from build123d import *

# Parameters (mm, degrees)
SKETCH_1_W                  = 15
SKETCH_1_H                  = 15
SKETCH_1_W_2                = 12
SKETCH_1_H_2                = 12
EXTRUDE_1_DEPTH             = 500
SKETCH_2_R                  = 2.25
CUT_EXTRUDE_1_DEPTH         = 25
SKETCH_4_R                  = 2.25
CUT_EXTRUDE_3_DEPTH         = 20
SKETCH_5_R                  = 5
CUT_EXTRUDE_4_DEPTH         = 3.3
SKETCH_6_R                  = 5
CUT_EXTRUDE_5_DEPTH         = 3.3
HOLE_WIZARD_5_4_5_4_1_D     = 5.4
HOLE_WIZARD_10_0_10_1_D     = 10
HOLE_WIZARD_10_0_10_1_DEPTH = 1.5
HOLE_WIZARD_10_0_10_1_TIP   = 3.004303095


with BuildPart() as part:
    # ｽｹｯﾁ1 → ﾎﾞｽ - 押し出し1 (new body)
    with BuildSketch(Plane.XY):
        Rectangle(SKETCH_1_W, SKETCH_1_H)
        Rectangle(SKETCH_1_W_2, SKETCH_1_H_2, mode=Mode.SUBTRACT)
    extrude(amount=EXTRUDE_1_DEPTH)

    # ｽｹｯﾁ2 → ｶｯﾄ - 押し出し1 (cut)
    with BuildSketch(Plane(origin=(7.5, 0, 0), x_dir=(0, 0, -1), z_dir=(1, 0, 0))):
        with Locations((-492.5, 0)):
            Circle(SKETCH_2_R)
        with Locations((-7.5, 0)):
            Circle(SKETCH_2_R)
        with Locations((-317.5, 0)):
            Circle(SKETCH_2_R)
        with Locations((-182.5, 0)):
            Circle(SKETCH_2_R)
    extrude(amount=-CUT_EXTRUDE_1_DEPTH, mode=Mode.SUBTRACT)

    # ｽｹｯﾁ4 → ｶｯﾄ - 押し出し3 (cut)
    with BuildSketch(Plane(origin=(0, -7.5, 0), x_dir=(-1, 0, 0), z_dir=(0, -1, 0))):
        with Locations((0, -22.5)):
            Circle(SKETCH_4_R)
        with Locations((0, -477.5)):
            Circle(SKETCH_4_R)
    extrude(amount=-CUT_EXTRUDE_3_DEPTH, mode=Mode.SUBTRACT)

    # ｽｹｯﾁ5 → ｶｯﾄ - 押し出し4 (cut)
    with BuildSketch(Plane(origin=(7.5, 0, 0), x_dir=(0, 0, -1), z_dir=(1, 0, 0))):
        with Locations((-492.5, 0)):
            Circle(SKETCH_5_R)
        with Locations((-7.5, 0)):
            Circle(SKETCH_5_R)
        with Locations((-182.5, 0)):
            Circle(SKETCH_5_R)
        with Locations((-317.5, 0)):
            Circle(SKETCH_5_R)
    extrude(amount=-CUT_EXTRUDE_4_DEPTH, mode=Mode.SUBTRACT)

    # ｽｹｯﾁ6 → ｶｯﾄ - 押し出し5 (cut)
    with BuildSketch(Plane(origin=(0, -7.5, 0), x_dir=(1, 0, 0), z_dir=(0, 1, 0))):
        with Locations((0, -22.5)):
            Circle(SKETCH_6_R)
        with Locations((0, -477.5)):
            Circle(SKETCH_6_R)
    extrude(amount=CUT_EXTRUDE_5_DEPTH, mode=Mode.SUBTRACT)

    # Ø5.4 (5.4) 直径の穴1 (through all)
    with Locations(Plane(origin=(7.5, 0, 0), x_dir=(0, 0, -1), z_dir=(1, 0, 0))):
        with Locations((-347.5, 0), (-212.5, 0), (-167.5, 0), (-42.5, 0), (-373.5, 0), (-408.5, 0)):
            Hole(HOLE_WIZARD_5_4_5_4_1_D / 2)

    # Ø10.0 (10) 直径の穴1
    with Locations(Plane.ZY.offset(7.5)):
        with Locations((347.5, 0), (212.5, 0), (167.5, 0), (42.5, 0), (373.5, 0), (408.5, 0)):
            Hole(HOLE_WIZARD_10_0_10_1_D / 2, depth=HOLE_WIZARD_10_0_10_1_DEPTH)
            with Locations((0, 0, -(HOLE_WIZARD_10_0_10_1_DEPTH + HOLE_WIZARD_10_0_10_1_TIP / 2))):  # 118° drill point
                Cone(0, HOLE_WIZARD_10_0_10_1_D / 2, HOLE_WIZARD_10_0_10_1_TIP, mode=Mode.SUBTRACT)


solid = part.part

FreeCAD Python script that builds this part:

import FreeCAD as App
import Part
import Sketcher

V = App.Vector
Q = App.Units.Quantity

doc = App.newDocument("Part")
body = doc.addObject("PartDesign::Body", "Body")

sketch1 = body.newObject("Sketcher::SketchObject", "Sketch")
sketch1.AttachmentSupport = (doc.getObject("XY_Plane"), [""])
sketch1.MapMode = "FlatFace"
sketch1.addGeometry([
    Part.LineSegment(V(-7.5, 7.5, 0), V(-7.5, -7.5, 0)),
    Part.LineSegment(V(-7.5, -7.5, 0), V(7.5, -7.5, 0)),
    Part.LineSegment(V(7.5, -7.5, 0), V(7.5, 7.5, 0)),
    Part.LineSegment(V(7.5, 7.5, 0), V(-7.5, 7.5, 0)),
    Part.LineSegment(V(6, -6, 0), V(-6, -6, 0)),
    Part.LineSegment(V(-6, -6, 0), V(-6, 6, 0)),
    Part.LineSegment(V(-6, 6, 0), V(6, 6, 0)),
    Part.LineSegment(V(6, 6, 0), V(6, -6, 0)),
], False)
sketch1.addConstraint([
    Sketcher.Constraint("Coincident", 0, 2, 1, 1),
    Sketcher.Constraint("Coincident", 1, 2, 2, 1),
    Sketcher.Constraint("Coincident", 2, 2, 3, 1),
    Sketcher.Constraint("Coincident", 3, 2, 0, 1),
    Sketcher.Constraint("Coincident", 4, 2, 5, 1),
    Sketcher.Constraint("Coincident", 5, 2, 6, 1),
    Sketcher.Constraint("Coincident", 6, 2, 7, 1),
    Sketcher.Constraint("Coincident", 7, 2, 4, 1),
    Sketcher.Constraint("Vertical", 0),
    Sketcher.Constraint("Horizontal", 1),
    Sketcher.Constraint("Vertical", 2),
    Sketcher.Constraint("Horizontal", 3),
    Sketcher.Constraint("Horizontal", 4),
    Sketcher.Constraint("Vertical", 5),
    Sketcher.Constraint("Horizontal", 6),
    Sketcher.Constraint("Vertical", 7),
    Sketcher.Constraint("Symmetric", 0, 2, 2, 2, -1, 1),
    Sketcher.Constraint("Symmetric", 4, 2, 6, 2, -1, 1),
    Sketcher.Constraint("Equal", 3, 0),
    Sketcher.Constraint("Equal", 6, 5),
    Sketcher.Constraint("DistanceX", 1, 1, 1, 2, Q("15 mm")),
    Sketcher.Constraint("DistanceX", 4, 2, 4, 1, Q("12 mm")),
])
pad1 = body.newObject("PartDesign::Pad", "Pad")
pad1.Profile = sketch1
pad1.Length = 500

sketch2 = body.newObject("Sketcher::SketchObject", "Sketch001")
sketch2.AttachmentSupport = (doc.getObject("YZ_Plane"), [""])
sketch2.MapMode = "FlatFace"
sketch2.AttachmentOffset = App.Placement(V(0, 0, 7.5), App.Rotation())
sketch2.addGeometry([
    Part.Circle(V(0, 492.5, 0), V(0, 0, 1), 2.25),
    Part.Circle(V(0, 7.5, 0), V(0, 0, 1), 2.25),
    Part.Circle(V(0, 317.5, 0), V(0, 0, 1), 2.25),
    Part.Circle(V(0, 182.5, 0), V(0, 0, 1), 2.25),
], False)
sketch2.addConstraint([
    Sketcher.Constraint("Equal", 0, 1),
    Sketcher.Constraint("Equal", 1, 2),
    Sketcher.Constraint("Equal", 2, 3),
    Sketcher.Constraint("PointOnObject", 0, 3, -2),
    Sketcher.Constraint("PointOnObject", 1, 3, -2),
    Sketcher.Constraint("PointOnObject", 2, 3, -2),
    Sketcher.Constraint("PointOnObject", 3, 3, -2),
    Sketcher.Constraint("Diameter", 0, Q("4.5 mm")),
    Sketcher.Constraint("DistanceY", 1, 3, 0, 3, Q("485 mm")),
    Sketcher.Constraint("DistanceY", 2, 3, 0, 3, Q("175 mm")),
    Sketcher.Constraint("DistanceY", 3, 3, 2, 3, Q("135 mm")),
    Sketcher.Constraint("DistanceY", -1, 1, 0, 3, Q("492.5 mm")),
])
pocket1 = body.newObject("PartDesign::Pocket", "Pocket")
pocket1.Profile = sketch2
pocket1.Length = 25

sketch3 = body.newObject("Sketcher::SketchObject", "Sketch002")
sketch3.AttachmentSupport = (doc.getObject("XZ_Plane"), [""])
sketch3.MapMode = "FlatFace"
sketch3.AttachmentOffset = App.Placement(V(0, 0, 7.5), App.Rotation())
sketch3.addGeometry([
    Part.Circle(V(0, 22.5, 0), V(0, 0, 1), 2.25),
    Part.Circle(V(0, 477.5, 0), V(0, 0, 1), 2.25),
], False)
sketch3.addConstraint([
    Sketcher.Constraint("Equal", 0, 1),
    Sketcher.Constraint("PointOnObject", 0, 3, -2),
    Sketcher.Constraint("PointOnObject", 1, 3, -2),
    Sketcher.Constraint("Diameter", 0, Q("4.5 mm")),
    Sketcher.Constraint("DistanceY", 0, 3, 1, 3, Q("455 mm")),
    Sketcher.Constraint("DistanceY", -1, 1, 0, 3, Q("22.5 mm")),
])
pocket2 = body.newObject("PartDesign::Pocket", "Pocket001")
pocket2.Profile = sketch3
pocket2.Length = 20

sketch4 = body.newObject("Sketcher::SketchObject", "Sketch003")
sketch4.AttachmentSupport = (doc.getObject("YZ_Plane"), [""])
sketch4.MapMode = "FlatFace"
sketch4.AttachmentOffset = App.Placement(V(0, 0, 7.5), App.Rotation())
sketch4.addGeometry([
    Part.Circle(V(0, 492.5, 0), V(0, 0, 1), 5),
    Part.Circle(V(0, 7.5, 0), V(0, 0, 1), 5),
    Part.Circle(V(0, 182.5, 0), V(0, 0, 1), 5),
    Part.Circle(V(0, 317.5, 0), V(0, 0, 1), 5),
], False)
sketch4.addConstraint([
    Sketcher.Constraint("Equal", 0, 1),
    Sketcher.Constraint("Equal", 1, 2),
    Sketcher.Constraint("Equal", 2, 3),
    Sketcher.Constraint("PointOnObject", 0, 3, -2),
    Sketcher.Constraint("PointOnObject", 1, 3, -2),
    Sketcher.Constraint("PointOnObject", 2, 3, -2),
    Sketcher.Constraint("PointOnObject", 3, 3, -2),
    Sketcher.Constraint("Diameter", 0, Q("10 mm")),
    Sketcher.Constraint("DistanceY", 1, 3, 0, 3, Q("485 mm")),
    Sketcher.Constraint("DistanceY", 1, 3, 2, 3, Q("175 mm")),
    Sketcher.Constraint("DistanceY", 2, 3, 3, 3, Q("135 mm")),
    Sketcher.Constraint("DistanceY", -1, 1, 0, 3, Q("492.5 mm")),
])
pocket3 = body.newObject("PartDesign::Pocket", "Pocket002")
pocket3.Profile = sketch4
pocket3.Length = 3.3

sketch5 = body.newObject("Sketcher::SketchObject", "Sketch004")
sketch5.AttachmentSupport = (doc.getObject("XZ_Plane"), [""])
sketch5.MapMode = "FlatFace"
sketch5.AttachmentOffset = App.Placement(V(0, 0, 7.5), App.Rotation())
sketch5.addGeometry([
    Part.Circle(V(0, 22.5, 0), V(0, 0, 1), 5),
    Part.Circle(V(0, 477.5, 0), V(0, 0, 1), 5),
], False)
sketch5.addConstraint([
    Sketcher.Constraint("Equal", 0, 1),
    Sketcher.Constraint("PointOnObject", 0, 3, -2),
    Sketcher.Constraint("PointOnObject", 1, 3, -2),
    Sketcher.Constraint("Diameter", 0, Q("10 mm")),
    Sketcher.Constraint("DistanceY", 0, 3, 1, 3, Q("455 mm")),
    Sketcher.Constraint("DistanceY", -1, 1, 0, 3, Q("22.5 mm")),
])
pocket4 = body.newObject("PartDesign::Pocket", "Pocket003")
pocket4.Profile = sketch5
pocket4.Length = 3.3

sketch6 = body.newObject("Sketcher::SketchObject", "Sketch005")
sketch6.AttachmentSupport = (doc.getObject("YZ_Plane"), [""])
sketch6.MapMode = "FlatFace"
sketch6.AttachmentOffset = App.Placement(V(0, 0, 7.5), App.Rotation())
sketch6.addGeometry([
    Part.Circle(V(0, 347.5, 0), V(0, 0, 1), 2.7),
    Part.Circle(V(0, 212.5, 0), V(0, 0, 1), 2.7),
    Part.Circle(V(0, 167.5, 0), V(0, 0, 1), 2.7),
    Part.Circle(V(0, 42.5, 0), V(0, 0, 1), 2.7),
    Part.Circle(V(0, 373.5, 0), V(0, 0, 1), 2.7),
    Part.Circle(V(0, 408.5, 0), V(0, 0, 1), 2.7),
], False)
sketch6.addConstraint([
    Sketcher.Constraint("Equal", 0, 1),
    Sketcher.Constraint("Equal", 1, 2),
    Sketcher.Constraint("Equal", 2, 3),
    Sketcher.Constraint("Equal", 3, 4),
    Sketcher.Constraint("Equal", 4, 5),
    Sketcher.Constraint("PointOnObject", 0, 3, -2),
    Sketcher.Constraint("PointOnObject", 1, 3, -2),
    Sketcher.Constraint("PointOnObject", 2, 3, -2),
    Sketcher.Constraint("PointOnObject", 3, 3, -2),
    Sketcher.Constraint("PointOnObject", 4, 3, -2),
    Sketcher.Constraint("PointOnObject", 5, 3, -2),
    Sketcher.Constraint("Diameter", 0, Q("5.4 mm")),
    Sketcher.Constraint("DistanceY", 1, 3, 0, 3, Q("135 mm")),
    Sketcher.Constraint("DistanceY", 2, 3, 1, 3, Q("45 mm")),
    Sketcher.Constraint("DistanceY", 3, 3, 2, 3, Q("125 mm")),
    Sketcher.Constraint("DistanceY", 0, 3, 4, 3, Q("26 mm")),
    Sketcher.Constraint("DistanceY", 4, 3, 5, 3, Q("35 mm")),
    Sketcher.Constraint("DistanceY", -1, 1, 0, 3, Q("347.5 mm")),
])
doc.recompute()
hole = body.newObject("PartDesign::Hole", "Hole")
hole.Profile = sketch6
hole.ThreadType = "None"
hole.Diameter = 5.4
hole.DepthType = "ThroughAll"

sketch7 = body.newObject("Sketcher::SketchObject", "Sketch006")
sketch7.AttachmentSupport = (doc.getObject("YZ_Plane"), [""])
sketch7.MapMode = "FlatFace"
sketch7.AttachmentOffset = App.Placement(V(0, 0, -7.5), App.Rotation())
sketch7.addGeometry([
    Part.Circle(V(0, 347.5, 0), V(0, 0, 1), 5),
    Part.Circle(V(0, 212.5, 0), V(0, 0, 1), 5),
    Part.Circle(V(0, 167.5, 0), V(0, 0, 1), 5),
    Part.Circle(V(0, 42.5, 0), V(0, 0, 1), 5),
    Part.Circle(V(0, 373.5, 0), V(0, 0, 1), 5),
    Part.Circle(V(0, 408.5, 0), V(0, 0, 1), 5),
], False)
sketch7.addConstraint([
    Sketcher.Constraint("Equal", 0, 1),
    Sketcher.Constraint("Equal", 1, 2),
    Sketcher.Constraint("Equal", 2, 3),
    Sketcher.Constraint("Equal", 3, 4),
    Sketcher.Constraint("Equal", 4, 5),
    Sketcher.Constraint("PointOnObject", 0, 3, -2),
    Sketcher.Constraint("PointOnObject", 1, 3, -2),
    Sketcher.Constraint("PointOnObject", 2, 3, -2),
    Sketcher.Constraint("PointOnObject", 3, 3, -2),
    Sketcher.Constraint("PointOnObject", 4, 3, -2),
    Sketcher.Constraint("PointOnObject", 5, 3, -2),
    Sketcher.Constraint("Diameter", 0, Q("10 mm")),
    Sketcher.Constraint("DistanceY", 1, 3, 0, 3, Q("135 mm")),
    Sketcher.Constraint("DistanceY", 2, 3, 1, 3, Q("45 mm")),
    Sketcher.Constraint("DistanceY", 3, 3, 2, 3, Q("125 mm")),
    Sketcher.Constraint("DistanceY", 0, 3, 4, 3, Q("26 mm")),
    Sketcher.Constraint("DistanceY", 4, 3, 5, 3, Q("35 mm")),
    Sketcher.Constraint("DistanceY", -1, 1, 0, 3, Q("347.5 mm")),
])
doc.recompute()
hole2 = body.newObject("PartDesign::Hole", "Hole001")
hole2.Profile = sketch7
hole2.ThreadType = "None"
hole2.Diameter = 10
hole2.DepthType = "Dimension"
hole2.Depth = 1.5
hole2.DrillPoint = "Angled"
hole2.DrillPointAngle = 118
hole2.Reversed = True

doc.recompute()
